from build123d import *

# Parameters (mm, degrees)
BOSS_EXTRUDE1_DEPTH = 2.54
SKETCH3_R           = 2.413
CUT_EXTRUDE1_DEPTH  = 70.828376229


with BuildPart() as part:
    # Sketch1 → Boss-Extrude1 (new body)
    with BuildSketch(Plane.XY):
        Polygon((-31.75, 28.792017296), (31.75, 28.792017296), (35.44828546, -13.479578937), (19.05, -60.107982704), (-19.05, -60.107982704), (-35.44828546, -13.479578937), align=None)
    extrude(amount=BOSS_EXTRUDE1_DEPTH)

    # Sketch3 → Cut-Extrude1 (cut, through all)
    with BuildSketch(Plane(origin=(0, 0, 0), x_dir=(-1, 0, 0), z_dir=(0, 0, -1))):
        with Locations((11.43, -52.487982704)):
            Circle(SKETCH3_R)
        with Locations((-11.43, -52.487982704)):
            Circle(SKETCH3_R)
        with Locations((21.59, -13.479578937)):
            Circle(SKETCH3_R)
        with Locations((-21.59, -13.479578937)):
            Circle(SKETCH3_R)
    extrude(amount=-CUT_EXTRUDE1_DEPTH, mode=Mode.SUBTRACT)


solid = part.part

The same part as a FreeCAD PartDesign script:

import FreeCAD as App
import Part
import Sketcher
from FreeCAD import Vector
Q = App.Units.Quantity

doc = App.newDocument("Part")
body = doc.addObject("PartDesign::Body", "Body")

sketch1 = body.newObject("Sketcher::SketchObject", "Sketch")
sketch1.AttachmentSupport = (doc.getObject("XY_Plane"), [""])
sketch1.MapMode = "FlatFace"
sketch1.addGeometry([
    Part.LineSegment(Vector(32, 29, 0), Vector(-32, 29, 0)),
    Part.LineSegment(Vector(-32, 29, 0), Vector(-35, -13, 0)),
    Part.LineSegment(Vector(-35, -13, 0), Vector(-19, -60, 0)),
    Part.LineSegment(Vector(-19, -60, 0), Vector(19, -60, 0)),
    Part.LineSegment(Vector(19, -60, 0), Vector(35, -13, 0)),
    Part.LineSegment(Vector(35, -13, 0), Vector(32, 29, 0)),
], False)
sketch1.addConstraint([
    Sketcher.Constraint("Coincident", 0, 2, 1, 1),
    Sketcher.Constraint("Coincident", 1, 2, 2, 1),
    Sketcher.Constraint("Coincident", 2, 2, 3, 1),
    Sketcher.Constraint("Coincident", 3, 2, 4, 1),
    Sketcher.Constraint("Coincident", 4, 2, 5, 1),
    Sketcher.Constraint("Coincident", 5, 2, 0, 1),
    Sketcher.Constraint("Horizontal", 0),
    Sketcher.Constraint("Horizontal", 3),
    Sketcher.Constraint("Symmetric", 1, 2, 4, 2, -2),
    Sketcher.Constraint("Equal", 2, 4),
    Sketcher.Constraint("Equal", 1, 5),
    Sketcher.Constraint("DistanceX", 0, 2, 0, 1, Q("2.5 in")),
    Sketcher.Constraint("DistanceX", 3, 1, 3, 2, Q("1.5 in")),
    Sketcher.Constraint("Angle", 1, Q("-95 deg")),
    Sketcher.Constraint("DistanceY", 2, 2, 0, 2, Q("3.5 in")),
    Sketcher.Constraint("DistanceY", 1, 2, -1, 1, 13.479579),
    Sketcher.Constraint("DistanceX", 1, 2, 4, 2, 70.896571),
])
pad1 = body.newObject("PartDesign::Pad", "Pad")
pad1.Profile = sketch1
pad1.Length = Q("0.1 in")

sketch2 = body.newObject("Sketcher::SketchObject", "Sketch001")
sketch2.AttachmentSupport = (doc.getObject("XY_Plane"), [""])
sketch2.MapMode = "FlatFace"
sketch2.addGeometry([
    Part.Circle(Vector(-11.4, -52.5, 0), Vector(0, 0, 1), 2.4),
    Part.Circle(Vector(11.4, -52.5, 0), Vector(0, 0, 1), 2.4),
    Part.Circle(Vector(-21.6, -13.5, 0), Vector(0, 0, 1), 2.4),
    Part.Circle(Vector(21.6, -13.5, 0), Vector(0, 0, 1), 2.4),
], False)
sketch2.addConstraint([
    Sketcher.Constraint("Equal", 0, 1),
    Sketcher.Constraint("Equal", 1, 2),
    Sketcher.Constraint("Equal", 2, 3),
    Sketcher.Constraint("Symmetric", 0, 3, 1, 3, -2),
    Sketcher.Constraint("Symmetric", 2, 3, 3, 3, -2),
    Sketcher.Constraint("Diameter", 0, Q("0.19 in")),
    Sketcher.Constraint("DistanceX", 0, 3, 1, 3, Q("0.9 in")),
    Sketcher.Constraint("DistanceX", 2, 3, 0, 3, Q("0.4 in")),
    Sketcher.Constraint("DistanceY", 2, 3, -1, 1, 13.479579),
    Sketcher.Constraint("DistanceY", 0, 3, -1, 1, 52.487983),
])
pocket1 = body.newObject("PartDesign::Pocket", "Pocket")
pocket1.Profile = sketch2
pocket1.Type = "ThroughAll"
pocket1.Reversed = True

doc.recompute()
